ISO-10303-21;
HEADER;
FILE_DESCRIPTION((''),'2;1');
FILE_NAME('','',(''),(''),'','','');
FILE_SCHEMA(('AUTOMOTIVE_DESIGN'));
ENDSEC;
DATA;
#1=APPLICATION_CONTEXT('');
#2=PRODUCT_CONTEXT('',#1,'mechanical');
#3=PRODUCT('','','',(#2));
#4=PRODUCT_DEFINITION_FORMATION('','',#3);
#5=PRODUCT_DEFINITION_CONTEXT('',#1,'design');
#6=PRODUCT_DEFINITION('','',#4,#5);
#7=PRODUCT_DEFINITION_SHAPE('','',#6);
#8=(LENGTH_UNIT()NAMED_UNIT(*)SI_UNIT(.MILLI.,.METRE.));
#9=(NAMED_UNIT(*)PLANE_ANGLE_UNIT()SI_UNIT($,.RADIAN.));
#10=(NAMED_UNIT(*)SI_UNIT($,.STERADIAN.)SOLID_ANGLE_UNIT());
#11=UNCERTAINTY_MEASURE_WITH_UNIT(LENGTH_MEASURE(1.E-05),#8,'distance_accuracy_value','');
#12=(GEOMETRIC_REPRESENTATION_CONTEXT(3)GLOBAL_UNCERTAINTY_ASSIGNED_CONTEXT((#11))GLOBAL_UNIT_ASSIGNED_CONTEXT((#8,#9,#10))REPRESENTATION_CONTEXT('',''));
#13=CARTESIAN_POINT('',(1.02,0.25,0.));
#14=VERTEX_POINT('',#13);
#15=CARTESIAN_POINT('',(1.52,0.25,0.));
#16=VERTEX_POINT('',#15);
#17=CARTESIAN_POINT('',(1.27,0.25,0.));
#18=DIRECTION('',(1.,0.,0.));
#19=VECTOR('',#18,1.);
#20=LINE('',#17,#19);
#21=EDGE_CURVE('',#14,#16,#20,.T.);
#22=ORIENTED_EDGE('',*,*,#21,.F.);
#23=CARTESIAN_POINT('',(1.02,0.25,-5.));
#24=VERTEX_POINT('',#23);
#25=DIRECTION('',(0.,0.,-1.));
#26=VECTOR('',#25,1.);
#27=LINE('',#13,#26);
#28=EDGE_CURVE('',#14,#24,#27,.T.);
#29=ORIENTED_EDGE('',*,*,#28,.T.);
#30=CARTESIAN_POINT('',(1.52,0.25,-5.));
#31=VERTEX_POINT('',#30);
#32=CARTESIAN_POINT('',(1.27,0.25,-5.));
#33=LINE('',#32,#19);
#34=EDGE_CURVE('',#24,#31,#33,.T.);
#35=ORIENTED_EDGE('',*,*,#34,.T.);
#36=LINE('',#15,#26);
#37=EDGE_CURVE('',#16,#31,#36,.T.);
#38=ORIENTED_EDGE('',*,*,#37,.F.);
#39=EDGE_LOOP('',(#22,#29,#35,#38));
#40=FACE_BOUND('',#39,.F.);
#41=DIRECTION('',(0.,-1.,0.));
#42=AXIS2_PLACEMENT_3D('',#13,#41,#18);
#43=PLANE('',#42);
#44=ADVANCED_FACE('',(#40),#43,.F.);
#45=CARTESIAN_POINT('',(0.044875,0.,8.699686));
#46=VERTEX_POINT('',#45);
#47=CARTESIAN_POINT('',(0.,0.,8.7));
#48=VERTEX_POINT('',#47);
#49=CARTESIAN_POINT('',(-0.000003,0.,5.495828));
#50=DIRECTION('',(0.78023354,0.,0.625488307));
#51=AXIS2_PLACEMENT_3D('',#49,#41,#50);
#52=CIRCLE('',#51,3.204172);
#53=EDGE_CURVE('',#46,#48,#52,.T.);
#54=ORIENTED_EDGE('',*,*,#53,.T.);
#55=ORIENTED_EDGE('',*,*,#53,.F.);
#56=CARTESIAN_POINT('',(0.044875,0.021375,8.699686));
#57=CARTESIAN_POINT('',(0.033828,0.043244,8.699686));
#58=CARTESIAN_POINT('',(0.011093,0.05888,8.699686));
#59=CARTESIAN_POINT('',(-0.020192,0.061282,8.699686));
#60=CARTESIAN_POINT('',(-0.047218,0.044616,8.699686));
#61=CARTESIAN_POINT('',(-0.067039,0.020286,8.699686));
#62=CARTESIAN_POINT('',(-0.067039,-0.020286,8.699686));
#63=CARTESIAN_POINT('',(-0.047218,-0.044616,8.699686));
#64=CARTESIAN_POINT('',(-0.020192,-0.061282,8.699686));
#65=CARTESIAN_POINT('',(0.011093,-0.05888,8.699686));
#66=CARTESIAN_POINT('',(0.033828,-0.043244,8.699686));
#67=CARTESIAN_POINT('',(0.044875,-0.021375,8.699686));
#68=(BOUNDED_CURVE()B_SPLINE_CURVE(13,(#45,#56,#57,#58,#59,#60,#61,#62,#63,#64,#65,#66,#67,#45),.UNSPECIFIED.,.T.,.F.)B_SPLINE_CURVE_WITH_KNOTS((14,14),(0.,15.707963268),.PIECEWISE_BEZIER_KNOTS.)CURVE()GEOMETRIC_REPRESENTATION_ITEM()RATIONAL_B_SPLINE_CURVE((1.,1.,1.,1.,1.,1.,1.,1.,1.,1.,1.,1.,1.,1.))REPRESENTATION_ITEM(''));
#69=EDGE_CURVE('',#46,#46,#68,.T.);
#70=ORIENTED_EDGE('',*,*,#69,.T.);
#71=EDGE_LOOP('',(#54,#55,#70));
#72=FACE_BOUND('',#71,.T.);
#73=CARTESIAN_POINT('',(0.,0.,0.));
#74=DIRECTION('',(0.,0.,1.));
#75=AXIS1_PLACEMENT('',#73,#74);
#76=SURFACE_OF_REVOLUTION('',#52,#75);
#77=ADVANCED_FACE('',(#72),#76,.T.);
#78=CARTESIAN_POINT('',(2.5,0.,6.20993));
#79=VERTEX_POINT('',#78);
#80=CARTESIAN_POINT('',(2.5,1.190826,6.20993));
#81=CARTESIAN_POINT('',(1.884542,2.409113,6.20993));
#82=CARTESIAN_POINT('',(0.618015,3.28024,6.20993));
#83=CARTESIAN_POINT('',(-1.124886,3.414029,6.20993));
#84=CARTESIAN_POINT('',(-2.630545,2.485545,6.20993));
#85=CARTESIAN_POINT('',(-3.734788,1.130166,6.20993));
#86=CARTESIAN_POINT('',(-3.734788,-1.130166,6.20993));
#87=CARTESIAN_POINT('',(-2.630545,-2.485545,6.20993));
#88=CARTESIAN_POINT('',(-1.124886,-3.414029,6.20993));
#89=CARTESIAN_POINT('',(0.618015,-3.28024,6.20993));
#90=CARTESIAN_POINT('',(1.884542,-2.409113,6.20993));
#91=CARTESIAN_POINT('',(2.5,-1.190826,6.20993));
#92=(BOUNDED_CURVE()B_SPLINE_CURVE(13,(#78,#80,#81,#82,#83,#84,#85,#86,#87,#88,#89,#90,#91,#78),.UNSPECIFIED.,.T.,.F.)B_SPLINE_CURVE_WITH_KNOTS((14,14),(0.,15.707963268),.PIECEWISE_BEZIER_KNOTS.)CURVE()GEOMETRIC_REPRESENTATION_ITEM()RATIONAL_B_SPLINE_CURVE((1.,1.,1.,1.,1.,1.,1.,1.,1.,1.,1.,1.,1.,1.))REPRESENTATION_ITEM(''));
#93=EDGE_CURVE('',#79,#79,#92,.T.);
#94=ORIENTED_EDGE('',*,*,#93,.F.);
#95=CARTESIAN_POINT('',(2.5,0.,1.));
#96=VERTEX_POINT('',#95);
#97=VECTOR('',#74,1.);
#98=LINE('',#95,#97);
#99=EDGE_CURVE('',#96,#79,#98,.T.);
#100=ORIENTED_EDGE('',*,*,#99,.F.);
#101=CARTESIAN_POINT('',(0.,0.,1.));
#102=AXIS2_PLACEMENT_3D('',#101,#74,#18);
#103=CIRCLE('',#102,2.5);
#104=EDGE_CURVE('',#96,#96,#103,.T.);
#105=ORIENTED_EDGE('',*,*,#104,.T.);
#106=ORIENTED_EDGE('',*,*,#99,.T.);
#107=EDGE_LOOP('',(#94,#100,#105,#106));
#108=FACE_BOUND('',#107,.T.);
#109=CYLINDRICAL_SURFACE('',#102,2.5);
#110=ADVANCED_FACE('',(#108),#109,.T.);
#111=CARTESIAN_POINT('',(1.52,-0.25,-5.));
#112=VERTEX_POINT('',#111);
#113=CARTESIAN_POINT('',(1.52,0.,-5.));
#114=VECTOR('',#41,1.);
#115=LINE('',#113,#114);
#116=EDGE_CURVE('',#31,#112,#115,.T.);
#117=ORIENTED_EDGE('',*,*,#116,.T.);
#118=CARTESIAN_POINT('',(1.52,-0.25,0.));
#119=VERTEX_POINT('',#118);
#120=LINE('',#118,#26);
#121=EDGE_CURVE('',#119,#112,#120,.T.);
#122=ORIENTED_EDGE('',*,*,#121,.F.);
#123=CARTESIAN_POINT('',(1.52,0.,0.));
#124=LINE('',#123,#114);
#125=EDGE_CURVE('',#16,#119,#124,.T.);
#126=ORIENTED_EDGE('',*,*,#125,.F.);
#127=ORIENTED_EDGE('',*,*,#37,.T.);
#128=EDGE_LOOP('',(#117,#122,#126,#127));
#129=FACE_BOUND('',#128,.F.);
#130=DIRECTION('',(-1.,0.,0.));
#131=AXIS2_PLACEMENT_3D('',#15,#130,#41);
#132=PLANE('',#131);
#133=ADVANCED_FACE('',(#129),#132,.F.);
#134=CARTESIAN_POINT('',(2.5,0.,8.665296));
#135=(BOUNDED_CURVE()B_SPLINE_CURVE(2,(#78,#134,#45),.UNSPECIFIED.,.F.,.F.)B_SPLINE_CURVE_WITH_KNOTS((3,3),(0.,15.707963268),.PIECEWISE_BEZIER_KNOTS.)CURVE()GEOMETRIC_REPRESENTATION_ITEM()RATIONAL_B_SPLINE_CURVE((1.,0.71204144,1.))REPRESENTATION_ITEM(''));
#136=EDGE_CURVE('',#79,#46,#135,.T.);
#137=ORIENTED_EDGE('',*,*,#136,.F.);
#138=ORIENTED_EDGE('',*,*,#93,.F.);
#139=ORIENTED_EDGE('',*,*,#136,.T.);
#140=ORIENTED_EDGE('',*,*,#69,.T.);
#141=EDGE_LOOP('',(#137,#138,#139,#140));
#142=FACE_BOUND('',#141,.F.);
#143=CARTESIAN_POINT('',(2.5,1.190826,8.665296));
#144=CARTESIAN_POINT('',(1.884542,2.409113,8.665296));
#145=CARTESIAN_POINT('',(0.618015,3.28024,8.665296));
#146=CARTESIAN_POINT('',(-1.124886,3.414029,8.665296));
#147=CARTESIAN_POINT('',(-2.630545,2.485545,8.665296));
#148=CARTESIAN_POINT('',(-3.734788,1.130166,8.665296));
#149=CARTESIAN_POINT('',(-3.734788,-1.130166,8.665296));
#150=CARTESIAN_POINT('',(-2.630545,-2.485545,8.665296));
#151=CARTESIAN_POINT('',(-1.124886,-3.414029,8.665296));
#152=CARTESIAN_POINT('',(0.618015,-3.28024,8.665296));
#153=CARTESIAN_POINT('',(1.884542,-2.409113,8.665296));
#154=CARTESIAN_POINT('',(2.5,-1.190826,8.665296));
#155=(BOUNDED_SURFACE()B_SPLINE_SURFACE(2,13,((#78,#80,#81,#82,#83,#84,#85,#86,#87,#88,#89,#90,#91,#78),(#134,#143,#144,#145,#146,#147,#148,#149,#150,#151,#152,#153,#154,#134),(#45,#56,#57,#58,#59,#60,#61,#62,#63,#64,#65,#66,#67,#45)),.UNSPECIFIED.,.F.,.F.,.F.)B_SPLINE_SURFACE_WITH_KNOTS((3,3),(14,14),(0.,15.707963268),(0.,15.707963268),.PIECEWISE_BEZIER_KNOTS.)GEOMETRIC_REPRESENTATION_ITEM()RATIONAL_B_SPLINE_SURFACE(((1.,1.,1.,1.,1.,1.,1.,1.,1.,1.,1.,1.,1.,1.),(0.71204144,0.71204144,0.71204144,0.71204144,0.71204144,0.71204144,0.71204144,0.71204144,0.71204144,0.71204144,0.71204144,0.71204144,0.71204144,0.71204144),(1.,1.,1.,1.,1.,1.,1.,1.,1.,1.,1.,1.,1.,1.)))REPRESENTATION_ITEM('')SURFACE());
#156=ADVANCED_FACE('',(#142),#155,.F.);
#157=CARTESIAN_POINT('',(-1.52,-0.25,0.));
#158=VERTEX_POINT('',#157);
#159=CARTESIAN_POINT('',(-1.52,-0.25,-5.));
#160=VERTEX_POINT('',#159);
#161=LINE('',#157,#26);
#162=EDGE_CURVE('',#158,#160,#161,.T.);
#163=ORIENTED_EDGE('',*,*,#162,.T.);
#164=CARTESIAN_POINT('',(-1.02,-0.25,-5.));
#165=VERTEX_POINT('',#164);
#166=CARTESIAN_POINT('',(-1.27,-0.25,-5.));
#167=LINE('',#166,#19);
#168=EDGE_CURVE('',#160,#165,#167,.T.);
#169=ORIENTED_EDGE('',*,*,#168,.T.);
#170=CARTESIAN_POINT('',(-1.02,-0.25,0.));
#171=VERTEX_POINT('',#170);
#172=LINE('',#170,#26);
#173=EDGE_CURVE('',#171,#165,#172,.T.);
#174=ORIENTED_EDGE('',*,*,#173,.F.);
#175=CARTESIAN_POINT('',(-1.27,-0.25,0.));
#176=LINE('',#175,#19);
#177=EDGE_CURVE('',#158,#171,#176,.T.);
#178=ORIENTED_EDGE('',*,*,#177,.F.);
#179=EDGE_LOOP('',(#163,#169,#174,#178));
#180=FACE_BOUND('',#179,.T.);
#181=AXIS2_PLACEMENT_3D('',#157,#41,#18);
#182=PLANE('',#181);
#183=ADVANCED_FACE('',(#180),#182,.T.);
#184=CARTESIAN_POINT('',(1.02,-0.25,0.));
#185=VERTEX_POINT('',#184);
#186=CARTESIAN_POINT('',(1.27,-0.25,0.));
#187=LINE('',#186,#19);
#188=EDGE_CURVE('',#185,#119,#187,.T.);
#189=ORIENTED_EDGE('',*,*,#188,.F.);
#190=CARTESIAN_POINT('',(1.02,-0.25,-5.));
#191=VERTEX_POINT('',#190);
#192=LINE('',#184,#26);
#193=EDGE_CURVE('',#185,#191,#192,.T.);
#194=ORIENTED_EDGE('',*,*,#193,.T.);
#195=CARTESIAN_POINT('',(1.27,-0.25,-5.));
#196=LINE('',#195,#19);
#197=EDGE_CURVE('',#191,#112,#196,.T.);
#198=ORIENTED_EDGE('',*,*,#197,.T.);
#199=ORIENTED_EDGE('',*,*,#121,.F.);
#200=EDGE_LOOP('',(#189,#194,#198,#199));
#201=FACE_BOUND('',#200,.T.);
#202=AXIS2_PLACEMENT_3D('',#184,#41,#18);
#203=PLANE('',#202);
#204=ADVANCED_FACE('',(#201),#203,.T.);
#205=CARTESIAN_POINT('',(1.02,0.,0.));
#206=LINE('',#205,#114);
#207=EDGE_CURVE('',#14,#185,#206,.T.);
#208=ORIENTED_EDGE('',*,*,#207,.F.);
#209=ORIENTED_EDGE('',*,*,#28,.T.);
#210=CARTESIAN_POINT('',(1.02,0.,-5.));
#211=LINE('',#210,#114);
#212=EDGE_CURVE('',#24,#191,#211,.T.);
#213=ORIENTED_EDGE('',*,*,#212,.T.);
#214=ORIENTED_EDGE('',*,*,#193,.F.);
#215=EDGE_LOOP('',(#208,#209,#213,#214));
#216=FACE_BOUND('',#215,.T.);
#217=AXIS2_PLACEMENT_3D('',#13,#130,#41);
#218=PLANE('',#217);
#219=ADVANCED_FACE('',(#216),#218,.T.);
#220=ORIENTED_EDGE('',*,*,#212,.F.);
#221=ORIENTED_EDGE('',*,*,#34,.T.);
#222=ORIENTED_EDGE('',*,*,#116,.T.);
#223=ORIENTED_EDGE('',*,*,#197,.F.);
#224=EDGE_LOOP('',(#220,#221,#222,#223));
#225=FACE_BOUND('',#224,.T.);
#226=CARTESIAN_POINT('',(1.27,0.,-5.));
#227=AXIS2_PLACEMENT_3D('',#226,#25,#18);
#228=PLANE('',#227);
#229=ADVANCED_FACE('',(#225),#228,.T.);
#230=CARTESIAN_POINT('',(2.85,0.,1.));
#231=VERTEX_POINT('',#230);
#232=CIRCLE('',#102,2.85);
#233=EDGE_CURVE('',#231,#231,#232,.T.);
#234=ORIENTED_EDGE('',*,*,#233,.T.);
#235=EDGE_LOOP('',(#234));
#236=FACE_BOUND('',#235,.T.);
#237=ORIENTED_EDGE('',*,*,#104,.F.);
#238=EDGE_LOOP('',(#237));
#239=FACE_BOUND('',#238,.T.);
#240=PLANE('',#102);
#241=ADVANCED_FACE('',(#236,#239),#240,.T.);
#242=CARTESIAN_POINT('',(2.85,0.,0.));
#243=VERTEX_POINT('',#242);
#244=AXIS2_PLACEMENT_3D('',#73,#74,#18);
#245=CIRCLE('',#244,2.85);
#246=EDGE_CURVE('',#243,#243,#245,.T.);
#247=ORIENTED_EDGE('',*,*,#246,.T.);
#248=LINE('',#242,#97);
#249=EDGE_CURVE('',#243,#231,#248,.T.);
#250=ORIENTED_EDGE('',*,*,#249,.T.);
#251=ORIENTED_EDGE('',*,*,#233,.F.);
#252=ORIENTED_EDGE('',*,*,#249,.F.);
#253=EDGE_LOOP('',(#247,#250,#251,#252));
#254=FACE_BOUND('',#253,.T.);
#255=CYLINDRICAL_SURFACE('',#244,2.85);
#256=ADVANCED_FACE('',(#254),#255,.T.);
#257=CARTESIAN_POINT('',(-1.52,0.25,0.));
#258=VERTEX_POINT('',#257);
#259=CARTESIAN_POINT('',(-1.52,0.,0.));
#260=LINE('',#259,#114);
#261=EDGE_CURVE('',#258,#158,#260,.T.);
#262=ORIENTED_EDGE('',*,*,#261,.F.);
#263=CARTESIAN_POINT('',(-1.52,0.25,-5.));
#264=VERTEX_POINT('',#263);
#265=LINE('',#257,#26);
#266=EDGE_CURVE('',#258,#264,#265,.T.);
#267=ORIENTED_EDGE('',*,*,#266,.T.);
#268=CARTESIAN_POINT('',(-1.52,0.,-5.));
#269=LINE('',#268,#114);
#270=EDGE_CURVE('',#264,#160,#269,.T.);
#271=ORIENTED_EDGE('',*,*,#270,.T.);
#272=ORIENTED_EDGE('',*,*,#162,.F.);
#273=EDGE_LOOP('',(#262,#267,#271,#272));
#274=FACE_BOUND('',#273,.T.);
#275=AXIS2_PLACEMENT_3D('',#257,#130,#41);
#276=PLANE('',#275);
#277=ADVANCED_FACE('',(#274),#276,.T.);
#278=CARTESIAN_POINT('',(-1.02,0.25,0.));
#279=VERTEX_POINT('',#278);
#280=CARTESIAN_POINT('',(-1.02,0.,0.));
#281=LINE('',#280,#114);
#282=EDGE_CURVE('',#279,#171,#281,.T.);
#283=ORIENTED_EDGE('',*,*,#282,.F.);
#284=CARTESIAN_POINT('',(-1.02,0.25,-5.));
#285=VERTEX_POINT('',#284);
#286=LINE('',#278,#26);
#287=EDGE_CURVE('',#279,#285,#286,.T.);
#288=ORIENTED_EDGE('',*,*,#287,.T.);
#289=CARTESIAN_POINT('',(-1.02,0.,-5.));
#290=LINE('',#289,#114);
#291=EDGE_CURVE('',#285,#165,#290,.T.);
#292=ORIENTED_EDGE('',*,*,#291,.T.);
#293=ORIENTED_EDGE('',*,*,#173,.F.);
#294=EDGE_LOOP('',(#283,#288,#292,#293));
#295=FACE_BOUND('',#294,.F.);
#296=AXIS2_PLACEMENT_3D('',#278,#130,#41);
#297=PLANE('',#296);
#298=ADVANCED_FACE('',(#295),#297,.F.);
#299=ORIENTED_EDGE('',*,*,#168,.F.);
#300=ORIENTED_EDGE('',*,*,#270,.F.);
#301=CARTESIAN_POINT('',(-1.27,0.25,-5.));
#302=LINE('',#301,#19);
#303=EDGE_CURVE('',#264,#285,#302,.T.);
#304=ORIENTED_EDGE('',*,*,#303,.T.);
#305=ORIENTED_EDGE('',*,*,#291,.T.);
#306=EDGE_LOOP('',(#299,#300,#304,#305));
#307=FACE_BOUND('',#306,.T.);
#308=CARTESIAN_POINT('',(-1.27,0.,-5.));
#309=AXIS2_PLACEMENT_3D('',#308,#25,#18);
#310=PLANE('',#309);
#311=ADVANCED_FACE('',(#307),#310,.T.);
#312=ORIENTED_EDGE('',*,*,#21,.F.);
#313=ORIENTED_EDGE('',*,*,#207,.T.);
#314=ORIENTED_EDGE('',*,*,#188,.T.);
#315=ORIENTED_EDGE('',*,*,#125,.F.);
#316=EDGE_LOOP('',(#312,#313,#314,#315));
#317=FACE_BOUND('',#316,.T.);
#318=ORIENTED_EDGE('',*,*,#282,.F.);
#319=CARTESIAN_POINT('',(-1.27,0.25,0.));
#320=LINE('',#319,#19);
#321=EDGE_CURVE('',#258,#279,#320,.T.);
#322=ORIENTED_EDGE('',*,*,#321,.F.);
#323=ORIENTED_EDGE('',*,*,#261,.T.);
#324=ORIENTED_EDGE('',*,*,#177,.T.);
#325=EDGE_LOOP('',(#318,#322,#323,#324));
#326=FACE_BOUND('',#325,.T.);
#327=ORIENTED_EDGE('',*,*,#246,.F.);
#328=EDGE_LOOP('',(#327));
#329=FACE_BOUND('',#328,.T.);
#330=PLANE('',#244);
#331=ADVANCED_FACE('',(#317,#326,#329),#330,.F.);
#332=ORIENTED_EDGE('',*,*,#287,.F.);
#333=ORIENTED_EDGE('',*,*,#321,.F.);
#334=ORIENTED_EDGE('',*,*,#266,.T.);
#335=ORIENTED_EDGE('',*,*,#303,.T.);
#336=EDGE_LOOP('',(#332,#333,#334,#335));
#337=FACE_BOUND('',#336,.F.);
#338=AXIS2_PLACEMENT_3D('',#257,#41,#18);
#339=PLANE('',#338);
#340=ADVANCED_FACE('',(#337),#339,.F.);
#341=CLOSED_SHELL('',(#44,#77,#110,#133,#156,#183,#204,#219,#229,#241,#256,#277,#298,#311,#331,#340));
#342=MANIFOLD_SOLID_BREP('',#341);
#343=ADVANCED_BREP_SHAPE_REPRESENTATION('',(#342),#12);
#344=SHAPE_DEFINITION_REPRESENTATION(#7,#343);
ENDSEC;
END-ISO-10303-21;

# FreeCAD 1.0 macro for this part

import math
import FreeCAD as App
import Part
import Sketcher

V = App.Vector
Q = App.Units.Quantity


def edges_at(feature, points):
    """Names of the edges that pass closest to the given points."""
    edges = feature.Shape.Edges
    near = lambda p: min(range(len(edges)), key=lambda i: edges[i].distToShape(Part.Vertex(*p))[0])
    return sorted({f"Edge{near(p) + 1}" for p in points})

doc = App.newDocument("Part")
body = doc.addObject("PartDesign::Body", "Body")

sketch1 = body.newObject("Sketcher::SketchObject", "Sketch")
sketch1.AttachmentSupport = (doc.getObject("XZ_Plane"), [""])
sketch1.MapMode = "FlatFace"
sketch1.addGeometry([
    Part.LineSegment(V(0, 0, 0), V(2.85, 0, 0)),
    Part.LineSegment(V(2.85, 0, 0), V(2.85, 1, 0)),
    Part.LineSegment(V(2.85, 1, 0), V(2.5, 1, 0)),
    Part.LineSegment(V(2.5, 1, 0), V(2.5, 7.5, 0)),
    Part.ArcOfCircle(Part.Circle(V(0, 5.5, 0), V(0, 0, 1), 3.2), math.radians(39), math.radians(90)),
    Part.LineSegment(V(0, 8.7, 0), V(0, 0, 0)),
], False)
sketch1.addConstraint([
    Sketcher.Constraint("Coincident", 0, 2, 1, 1),
    Sketcher.Constraint("Coincident", 1, 2, 2, 1),
    Sketcher.Constraint("Coincident", 2, 2, 3, 1),
    Sketcher.Constraint("Coincident", 3, 2, 4, 1),
    Sketcher.Constraint("Coincident", 4, 2, 5, 1),
    Sketcher.Constraint("Coincident", 5, 2, 0, 1),
    Sketcher.Constraint("Horizontal", 0),
    Sketcher.Constraint("Vertical", 1),
    Sketcher.Constraint("Horizontal", 2),
    Sketcher.Constraint("Vertical", 3),
    Sketcher.Constraint("Vertical", 5),
    Sketcher.Constraint("Coincident", 5, 2, -1, 1),
    Sketcher.Constraint("DistanceY", 1, 1, 1, 2, Q("1 mm")),
    Sketcher.Constraint("DistanceY", 3, 1, 3, 2, Q("6.5 mm")),
    Sketcher.Constraint("DistanceY", 5, 2, 5, 1, Q("8.7 mm")),
    Sketcher.Constraint("DistanceX", 0, 1, 0, 2, Q("2.85 mm")),
    Sketcher.Constraint("DistanceX", 2, 2, 2, 1, Q("0.35 mm")),
    Sketcher.Constraint("Radius", 4, Q("3.204172 mm")),
])
revolution = body.newObject("PartDesign::Revolution", "Revolution")
revolution.Profile = sketch1
revolution.ReferenceAxis = (sketch1, ["V_Axis"])
revolution.Angle = 360

sketch2 = body.newObject("Sketcher::SketchObject", "Sketch001")
sketch2.AttachmentSupport = (doc.getObject("XY_Plane"), [""])
sketch2.MapMode = "FlatFace"
sketch2.addGeometry([
    Part.LineSegment(V(1, -0.2, 0), V(1, 0.2, 0)),
    Part.LineSegment(V(1, 0.2, 0), V(1.5, 0.2, 0)),
    Part.LineSegment(V(1.5, 0.2, 0), V(1.5, -0.2, 0)),
    Part.LineSegment(V(1.5, -0.2, 0), V(1, -0.2, 0)),
    Part.LineSegment(V(-1.5, -0.2, 0), V(-1.5, 0.2, 0)),
    Part.LineSegment(V(-1.5, 0.2, 0), V(-1, 0.2, 0)),
    Part.LineSegment(V(-1, 0.2, 0), V(-1, -0.2, 0)),
    Part.LineSegment(V(-1, -0.2, 0), V(-1.5, -0.2, 0)),
], False)
sketch2.addConstraint([
    Sketcher.Constraint("Coincident", 0, 2, 1, 1),
    Sketcher.Constraint("Coincident", 1, 2, 2, 1),
    Sketcher.Constraint("Coincident", 2, 2, 3, 1),
    Sketcher.Constraint("Coincident", 3, 2, 0, 1),
    Sketcher.Constraint("Coincident", 4, 2, 5, 1),
    Sketcher.Constraint("Coincident", 5, 2, 6, 1),
    Sketcher.Constraint("Coincident", 6, 2, 7, 1),
    Sketcher.Constraint("Coincident", 7, 2, 4, 1),
    Sketcher.Constraint("Vertical", 0),
    Sketcher.Constraint("Horizontal", 1),
    Sketcher.Constraint("Vertical", 2),
    Sketcher.Constraint("Horizontal", 3),
    Sketcher.Constraint("Vertical", 4),
    Sketcher.Constraint("Horizontal", 5),
    Sketcher.Constraint("Vertical", 6),
    Sketcher.Constraint("Horizontal", 7),
    Sketcher.Constraint("Symmetric", 2, 2, 4, 2, -1, 1),
    Sketcher.Constraint("Symmetric", 0, 2, 6, 2, -1, 1),
    Sketcher.Constraint("Horizontal", 1, 2, 4, 2),
    Sketcher.Constraint("Equal", 7, 0),
    Sketcher.Constraint("DistanceX", 1, 1, 1, 2, Q("0.5 mm")),
    Sketcher.Constraint("DistanceX", -1, 1, 0, 2, Q("1.02 mm")),
])
pad1 = body.newObject("PartDesign::Pad", "Pad")
pad1.Profile = sketch2
pad1.Length = 5
pad1.Reversed = True
doc.recompute()

fillet = body.newObject("PartDesign::Fillet", "Fillet")
fillet.Base = (pad1, edges_at(pad1, [(-2.5, 0, 7.5)]))
fillet.Radius = 2.49

doc.recompute()
